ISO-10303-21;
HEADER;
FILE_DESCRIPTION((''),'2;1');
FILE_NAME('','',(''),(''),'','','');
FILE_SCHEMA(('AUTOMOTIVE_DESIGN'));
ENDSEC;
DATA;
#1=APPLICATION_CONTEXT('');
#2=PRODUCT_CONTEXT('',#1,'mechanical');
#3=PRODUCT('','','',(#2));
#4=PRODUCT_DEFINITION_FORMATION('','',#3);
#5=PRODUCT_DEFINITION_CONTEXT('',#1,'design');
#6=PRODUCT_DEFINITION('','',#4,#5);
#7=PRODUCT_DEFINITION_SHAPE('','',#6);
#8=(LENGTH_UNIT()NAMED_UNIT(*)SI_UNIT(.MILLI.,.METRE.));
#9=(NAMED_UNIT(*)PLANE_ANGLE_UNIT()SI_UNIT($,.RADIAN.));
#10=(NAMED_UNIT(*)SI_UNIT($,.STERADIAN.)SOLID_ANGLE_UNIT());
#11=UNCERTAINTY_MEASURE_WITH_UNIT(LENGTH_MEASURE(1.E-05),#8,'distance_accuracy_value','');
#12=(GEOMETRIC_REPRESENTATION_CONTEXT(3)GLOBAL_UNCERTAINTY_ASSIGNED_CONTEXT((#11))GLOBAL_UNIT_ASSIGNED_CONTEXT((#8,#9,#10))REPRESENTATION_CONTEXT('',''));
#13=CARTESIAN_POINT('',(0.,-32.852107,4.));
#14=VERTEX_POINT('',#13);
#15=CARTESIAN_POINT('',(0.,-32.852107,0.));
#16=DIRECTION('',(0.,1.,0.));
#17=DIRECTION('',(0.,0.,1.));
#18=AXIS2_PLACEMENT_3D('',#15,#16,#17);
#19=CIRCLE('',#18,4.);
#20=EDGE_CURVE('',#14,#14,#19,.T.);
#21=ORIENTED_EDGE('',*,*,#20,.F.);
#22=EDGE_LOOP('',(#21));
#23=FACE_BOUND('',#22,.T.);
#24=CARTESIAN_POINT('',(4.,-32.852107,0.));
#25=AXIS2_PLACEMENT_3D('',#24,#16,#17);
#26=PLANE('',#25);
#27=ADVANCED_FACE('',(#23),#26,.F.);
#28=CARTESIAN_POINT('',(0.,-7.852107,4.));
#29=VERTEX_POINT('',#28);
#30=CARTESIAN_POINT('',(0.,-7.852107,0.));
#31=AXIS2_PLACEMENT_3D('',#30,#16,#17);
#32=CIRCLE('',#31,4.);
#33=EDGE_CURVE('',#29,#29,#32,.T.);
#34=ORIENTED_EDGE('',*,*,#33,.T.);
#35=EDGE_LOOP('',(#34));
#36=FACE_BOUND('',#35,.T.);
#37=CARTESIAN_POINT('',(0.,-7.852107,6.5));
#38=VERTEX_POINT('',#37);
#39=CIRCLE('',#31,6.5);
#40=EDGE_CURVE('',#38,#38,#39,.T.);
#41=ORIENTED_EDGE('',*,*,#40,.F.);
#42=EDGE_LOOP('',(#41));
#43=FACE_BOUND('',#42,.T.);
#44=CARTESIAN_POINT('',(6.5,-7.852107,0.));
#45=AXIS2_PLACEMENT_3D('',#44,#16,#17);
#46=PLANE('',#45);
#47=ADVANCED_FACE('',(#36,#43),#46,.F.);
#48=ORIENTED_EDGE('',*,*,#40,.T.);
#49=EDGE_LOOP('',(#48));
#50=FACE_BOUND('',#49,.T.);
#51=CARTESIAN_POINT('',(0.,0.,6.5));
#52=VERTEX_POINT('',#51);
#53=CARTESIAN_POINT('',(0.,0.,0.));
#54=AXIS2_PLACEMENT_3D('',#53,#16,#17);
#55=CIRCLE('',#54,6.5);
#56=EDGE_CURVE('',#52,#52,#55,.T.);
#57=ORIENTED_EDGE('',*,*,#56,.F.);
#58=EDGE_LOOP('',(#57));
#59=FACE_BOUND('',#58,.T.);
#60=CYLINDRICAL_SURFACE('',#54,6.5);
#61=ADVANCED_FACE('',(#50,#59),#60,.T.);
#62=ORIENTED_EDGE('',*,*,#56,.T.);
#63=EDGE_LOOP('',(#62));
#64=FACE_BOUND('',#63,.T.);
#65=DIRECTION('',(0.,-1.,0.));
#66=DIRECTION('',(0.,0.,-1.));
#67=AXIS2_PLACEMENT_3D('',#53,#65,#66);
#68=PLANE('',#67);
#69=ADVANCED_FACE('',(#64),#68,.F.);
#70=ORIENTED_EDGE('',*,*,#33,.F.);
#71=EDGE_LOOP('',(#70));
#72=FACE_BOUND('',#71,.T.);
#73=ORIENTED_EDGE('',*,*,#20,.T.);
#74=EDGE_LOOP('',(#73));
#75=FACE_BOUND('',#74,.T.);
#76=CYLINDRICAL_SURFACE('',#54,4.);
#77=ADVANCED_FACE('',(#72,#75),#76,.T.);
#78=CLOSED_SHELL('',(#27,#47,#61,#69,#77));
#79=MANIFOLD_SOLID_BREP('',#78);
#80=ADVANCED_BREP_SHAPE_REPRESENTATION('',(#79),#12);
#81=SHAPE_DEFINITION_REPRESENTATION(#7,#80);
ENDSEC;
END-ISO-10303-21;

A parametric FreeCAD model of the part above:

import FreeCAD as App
import Part
import Sketcher
Q = App.Units.Quantity

doc = App.newDocument("Part")
body = doc.addObject("PartDesign::Body", "Body")

# Sketch on XY plane
sketch1 = body.newObject("Sketcher::SketchObject", "Sketch")
sketch1.AttachmentSupport = (doc.getObject("XY_Plane"), [""])
sketch1.MapMode = "FlatFace"
sketch1.addGeometry([
    Part.LineSegment(App.Vector(6.5, 0, 0), App.Vector(0, 0, 0)),  # 0
    Part.LineSegment(App.Vector(0, 0, 0), App.Vector(0, -32.9, 0)),  # 1
    Part.LineSegment(App.Vector(0, -32.9, 0), App.Vector(4, -32.9, 0)),  # 2
    Part.LineSegment(App.Vector(4, -32.9, 0), App.Vector(4, -7.9, 0)),  # 3
    Part.LineSegment(App.Vector(4, -7.9, 0), App.Vector(6.5, -7.9, 0)),  # 4
    Part.LineSegment(App.Vector(6.5, -7.9, 0), App.Vector(6.5, 0, 0)),  # 5
], False)
sketch1.addConstraint([
    Sketcher.Constraint("Coincident", 0, 2, 1, 1),
    Sketcher.Constraint("Coincident", 1, 2, 2, 1),
    Sketcher.Constraint("Coincident", 2, 2, 3, 1),
    Sketcher.Constraint("Coincident", 3, 2, 4, 1),
    Sketcher.Constraint("Coincident", 4, 2, 5, 1),
    Sketcher.Constraint("Coincident", 5, 2, 0, 1),
    Sketcher.Constraint("Horizontal", 0),
    Sketcher.Constraint("Vertical", 1),
    Sketcher.Constraint("Horizontal", 2),
    Sketcher.Constraint("Vertical", 3),
    Sketcher.Constraint("Horizontal", 4),
    Sketcher.Constraint("Vertical", 5),
    Sketcher.Constraint("Coincident", 0, 2, -1, 1),
    Sketcher.Constraint("DistanceX", 2, 1, 2, 2, Q("4 mm")),
    Sketcher.Constraint("DistanceY", 3, 1, 3, 2, Q("25 mm")),
    Sketcher.Constraint("DistanceX", 0, 2, 0, 1, Q("6.5 mm")),
    Sketcher.Constraint("DistanceY", 1, 2, 1, 1, Q("32.852107 mm")),
])
revolution = body.newObject("PartDesign::Revolution", "Revolution")
revolution.Profile = sketch1
revolution.ReferenceAxis = (sketch1, ["V_Axis"])
revolution.Angle = 360

doc.recompute()
